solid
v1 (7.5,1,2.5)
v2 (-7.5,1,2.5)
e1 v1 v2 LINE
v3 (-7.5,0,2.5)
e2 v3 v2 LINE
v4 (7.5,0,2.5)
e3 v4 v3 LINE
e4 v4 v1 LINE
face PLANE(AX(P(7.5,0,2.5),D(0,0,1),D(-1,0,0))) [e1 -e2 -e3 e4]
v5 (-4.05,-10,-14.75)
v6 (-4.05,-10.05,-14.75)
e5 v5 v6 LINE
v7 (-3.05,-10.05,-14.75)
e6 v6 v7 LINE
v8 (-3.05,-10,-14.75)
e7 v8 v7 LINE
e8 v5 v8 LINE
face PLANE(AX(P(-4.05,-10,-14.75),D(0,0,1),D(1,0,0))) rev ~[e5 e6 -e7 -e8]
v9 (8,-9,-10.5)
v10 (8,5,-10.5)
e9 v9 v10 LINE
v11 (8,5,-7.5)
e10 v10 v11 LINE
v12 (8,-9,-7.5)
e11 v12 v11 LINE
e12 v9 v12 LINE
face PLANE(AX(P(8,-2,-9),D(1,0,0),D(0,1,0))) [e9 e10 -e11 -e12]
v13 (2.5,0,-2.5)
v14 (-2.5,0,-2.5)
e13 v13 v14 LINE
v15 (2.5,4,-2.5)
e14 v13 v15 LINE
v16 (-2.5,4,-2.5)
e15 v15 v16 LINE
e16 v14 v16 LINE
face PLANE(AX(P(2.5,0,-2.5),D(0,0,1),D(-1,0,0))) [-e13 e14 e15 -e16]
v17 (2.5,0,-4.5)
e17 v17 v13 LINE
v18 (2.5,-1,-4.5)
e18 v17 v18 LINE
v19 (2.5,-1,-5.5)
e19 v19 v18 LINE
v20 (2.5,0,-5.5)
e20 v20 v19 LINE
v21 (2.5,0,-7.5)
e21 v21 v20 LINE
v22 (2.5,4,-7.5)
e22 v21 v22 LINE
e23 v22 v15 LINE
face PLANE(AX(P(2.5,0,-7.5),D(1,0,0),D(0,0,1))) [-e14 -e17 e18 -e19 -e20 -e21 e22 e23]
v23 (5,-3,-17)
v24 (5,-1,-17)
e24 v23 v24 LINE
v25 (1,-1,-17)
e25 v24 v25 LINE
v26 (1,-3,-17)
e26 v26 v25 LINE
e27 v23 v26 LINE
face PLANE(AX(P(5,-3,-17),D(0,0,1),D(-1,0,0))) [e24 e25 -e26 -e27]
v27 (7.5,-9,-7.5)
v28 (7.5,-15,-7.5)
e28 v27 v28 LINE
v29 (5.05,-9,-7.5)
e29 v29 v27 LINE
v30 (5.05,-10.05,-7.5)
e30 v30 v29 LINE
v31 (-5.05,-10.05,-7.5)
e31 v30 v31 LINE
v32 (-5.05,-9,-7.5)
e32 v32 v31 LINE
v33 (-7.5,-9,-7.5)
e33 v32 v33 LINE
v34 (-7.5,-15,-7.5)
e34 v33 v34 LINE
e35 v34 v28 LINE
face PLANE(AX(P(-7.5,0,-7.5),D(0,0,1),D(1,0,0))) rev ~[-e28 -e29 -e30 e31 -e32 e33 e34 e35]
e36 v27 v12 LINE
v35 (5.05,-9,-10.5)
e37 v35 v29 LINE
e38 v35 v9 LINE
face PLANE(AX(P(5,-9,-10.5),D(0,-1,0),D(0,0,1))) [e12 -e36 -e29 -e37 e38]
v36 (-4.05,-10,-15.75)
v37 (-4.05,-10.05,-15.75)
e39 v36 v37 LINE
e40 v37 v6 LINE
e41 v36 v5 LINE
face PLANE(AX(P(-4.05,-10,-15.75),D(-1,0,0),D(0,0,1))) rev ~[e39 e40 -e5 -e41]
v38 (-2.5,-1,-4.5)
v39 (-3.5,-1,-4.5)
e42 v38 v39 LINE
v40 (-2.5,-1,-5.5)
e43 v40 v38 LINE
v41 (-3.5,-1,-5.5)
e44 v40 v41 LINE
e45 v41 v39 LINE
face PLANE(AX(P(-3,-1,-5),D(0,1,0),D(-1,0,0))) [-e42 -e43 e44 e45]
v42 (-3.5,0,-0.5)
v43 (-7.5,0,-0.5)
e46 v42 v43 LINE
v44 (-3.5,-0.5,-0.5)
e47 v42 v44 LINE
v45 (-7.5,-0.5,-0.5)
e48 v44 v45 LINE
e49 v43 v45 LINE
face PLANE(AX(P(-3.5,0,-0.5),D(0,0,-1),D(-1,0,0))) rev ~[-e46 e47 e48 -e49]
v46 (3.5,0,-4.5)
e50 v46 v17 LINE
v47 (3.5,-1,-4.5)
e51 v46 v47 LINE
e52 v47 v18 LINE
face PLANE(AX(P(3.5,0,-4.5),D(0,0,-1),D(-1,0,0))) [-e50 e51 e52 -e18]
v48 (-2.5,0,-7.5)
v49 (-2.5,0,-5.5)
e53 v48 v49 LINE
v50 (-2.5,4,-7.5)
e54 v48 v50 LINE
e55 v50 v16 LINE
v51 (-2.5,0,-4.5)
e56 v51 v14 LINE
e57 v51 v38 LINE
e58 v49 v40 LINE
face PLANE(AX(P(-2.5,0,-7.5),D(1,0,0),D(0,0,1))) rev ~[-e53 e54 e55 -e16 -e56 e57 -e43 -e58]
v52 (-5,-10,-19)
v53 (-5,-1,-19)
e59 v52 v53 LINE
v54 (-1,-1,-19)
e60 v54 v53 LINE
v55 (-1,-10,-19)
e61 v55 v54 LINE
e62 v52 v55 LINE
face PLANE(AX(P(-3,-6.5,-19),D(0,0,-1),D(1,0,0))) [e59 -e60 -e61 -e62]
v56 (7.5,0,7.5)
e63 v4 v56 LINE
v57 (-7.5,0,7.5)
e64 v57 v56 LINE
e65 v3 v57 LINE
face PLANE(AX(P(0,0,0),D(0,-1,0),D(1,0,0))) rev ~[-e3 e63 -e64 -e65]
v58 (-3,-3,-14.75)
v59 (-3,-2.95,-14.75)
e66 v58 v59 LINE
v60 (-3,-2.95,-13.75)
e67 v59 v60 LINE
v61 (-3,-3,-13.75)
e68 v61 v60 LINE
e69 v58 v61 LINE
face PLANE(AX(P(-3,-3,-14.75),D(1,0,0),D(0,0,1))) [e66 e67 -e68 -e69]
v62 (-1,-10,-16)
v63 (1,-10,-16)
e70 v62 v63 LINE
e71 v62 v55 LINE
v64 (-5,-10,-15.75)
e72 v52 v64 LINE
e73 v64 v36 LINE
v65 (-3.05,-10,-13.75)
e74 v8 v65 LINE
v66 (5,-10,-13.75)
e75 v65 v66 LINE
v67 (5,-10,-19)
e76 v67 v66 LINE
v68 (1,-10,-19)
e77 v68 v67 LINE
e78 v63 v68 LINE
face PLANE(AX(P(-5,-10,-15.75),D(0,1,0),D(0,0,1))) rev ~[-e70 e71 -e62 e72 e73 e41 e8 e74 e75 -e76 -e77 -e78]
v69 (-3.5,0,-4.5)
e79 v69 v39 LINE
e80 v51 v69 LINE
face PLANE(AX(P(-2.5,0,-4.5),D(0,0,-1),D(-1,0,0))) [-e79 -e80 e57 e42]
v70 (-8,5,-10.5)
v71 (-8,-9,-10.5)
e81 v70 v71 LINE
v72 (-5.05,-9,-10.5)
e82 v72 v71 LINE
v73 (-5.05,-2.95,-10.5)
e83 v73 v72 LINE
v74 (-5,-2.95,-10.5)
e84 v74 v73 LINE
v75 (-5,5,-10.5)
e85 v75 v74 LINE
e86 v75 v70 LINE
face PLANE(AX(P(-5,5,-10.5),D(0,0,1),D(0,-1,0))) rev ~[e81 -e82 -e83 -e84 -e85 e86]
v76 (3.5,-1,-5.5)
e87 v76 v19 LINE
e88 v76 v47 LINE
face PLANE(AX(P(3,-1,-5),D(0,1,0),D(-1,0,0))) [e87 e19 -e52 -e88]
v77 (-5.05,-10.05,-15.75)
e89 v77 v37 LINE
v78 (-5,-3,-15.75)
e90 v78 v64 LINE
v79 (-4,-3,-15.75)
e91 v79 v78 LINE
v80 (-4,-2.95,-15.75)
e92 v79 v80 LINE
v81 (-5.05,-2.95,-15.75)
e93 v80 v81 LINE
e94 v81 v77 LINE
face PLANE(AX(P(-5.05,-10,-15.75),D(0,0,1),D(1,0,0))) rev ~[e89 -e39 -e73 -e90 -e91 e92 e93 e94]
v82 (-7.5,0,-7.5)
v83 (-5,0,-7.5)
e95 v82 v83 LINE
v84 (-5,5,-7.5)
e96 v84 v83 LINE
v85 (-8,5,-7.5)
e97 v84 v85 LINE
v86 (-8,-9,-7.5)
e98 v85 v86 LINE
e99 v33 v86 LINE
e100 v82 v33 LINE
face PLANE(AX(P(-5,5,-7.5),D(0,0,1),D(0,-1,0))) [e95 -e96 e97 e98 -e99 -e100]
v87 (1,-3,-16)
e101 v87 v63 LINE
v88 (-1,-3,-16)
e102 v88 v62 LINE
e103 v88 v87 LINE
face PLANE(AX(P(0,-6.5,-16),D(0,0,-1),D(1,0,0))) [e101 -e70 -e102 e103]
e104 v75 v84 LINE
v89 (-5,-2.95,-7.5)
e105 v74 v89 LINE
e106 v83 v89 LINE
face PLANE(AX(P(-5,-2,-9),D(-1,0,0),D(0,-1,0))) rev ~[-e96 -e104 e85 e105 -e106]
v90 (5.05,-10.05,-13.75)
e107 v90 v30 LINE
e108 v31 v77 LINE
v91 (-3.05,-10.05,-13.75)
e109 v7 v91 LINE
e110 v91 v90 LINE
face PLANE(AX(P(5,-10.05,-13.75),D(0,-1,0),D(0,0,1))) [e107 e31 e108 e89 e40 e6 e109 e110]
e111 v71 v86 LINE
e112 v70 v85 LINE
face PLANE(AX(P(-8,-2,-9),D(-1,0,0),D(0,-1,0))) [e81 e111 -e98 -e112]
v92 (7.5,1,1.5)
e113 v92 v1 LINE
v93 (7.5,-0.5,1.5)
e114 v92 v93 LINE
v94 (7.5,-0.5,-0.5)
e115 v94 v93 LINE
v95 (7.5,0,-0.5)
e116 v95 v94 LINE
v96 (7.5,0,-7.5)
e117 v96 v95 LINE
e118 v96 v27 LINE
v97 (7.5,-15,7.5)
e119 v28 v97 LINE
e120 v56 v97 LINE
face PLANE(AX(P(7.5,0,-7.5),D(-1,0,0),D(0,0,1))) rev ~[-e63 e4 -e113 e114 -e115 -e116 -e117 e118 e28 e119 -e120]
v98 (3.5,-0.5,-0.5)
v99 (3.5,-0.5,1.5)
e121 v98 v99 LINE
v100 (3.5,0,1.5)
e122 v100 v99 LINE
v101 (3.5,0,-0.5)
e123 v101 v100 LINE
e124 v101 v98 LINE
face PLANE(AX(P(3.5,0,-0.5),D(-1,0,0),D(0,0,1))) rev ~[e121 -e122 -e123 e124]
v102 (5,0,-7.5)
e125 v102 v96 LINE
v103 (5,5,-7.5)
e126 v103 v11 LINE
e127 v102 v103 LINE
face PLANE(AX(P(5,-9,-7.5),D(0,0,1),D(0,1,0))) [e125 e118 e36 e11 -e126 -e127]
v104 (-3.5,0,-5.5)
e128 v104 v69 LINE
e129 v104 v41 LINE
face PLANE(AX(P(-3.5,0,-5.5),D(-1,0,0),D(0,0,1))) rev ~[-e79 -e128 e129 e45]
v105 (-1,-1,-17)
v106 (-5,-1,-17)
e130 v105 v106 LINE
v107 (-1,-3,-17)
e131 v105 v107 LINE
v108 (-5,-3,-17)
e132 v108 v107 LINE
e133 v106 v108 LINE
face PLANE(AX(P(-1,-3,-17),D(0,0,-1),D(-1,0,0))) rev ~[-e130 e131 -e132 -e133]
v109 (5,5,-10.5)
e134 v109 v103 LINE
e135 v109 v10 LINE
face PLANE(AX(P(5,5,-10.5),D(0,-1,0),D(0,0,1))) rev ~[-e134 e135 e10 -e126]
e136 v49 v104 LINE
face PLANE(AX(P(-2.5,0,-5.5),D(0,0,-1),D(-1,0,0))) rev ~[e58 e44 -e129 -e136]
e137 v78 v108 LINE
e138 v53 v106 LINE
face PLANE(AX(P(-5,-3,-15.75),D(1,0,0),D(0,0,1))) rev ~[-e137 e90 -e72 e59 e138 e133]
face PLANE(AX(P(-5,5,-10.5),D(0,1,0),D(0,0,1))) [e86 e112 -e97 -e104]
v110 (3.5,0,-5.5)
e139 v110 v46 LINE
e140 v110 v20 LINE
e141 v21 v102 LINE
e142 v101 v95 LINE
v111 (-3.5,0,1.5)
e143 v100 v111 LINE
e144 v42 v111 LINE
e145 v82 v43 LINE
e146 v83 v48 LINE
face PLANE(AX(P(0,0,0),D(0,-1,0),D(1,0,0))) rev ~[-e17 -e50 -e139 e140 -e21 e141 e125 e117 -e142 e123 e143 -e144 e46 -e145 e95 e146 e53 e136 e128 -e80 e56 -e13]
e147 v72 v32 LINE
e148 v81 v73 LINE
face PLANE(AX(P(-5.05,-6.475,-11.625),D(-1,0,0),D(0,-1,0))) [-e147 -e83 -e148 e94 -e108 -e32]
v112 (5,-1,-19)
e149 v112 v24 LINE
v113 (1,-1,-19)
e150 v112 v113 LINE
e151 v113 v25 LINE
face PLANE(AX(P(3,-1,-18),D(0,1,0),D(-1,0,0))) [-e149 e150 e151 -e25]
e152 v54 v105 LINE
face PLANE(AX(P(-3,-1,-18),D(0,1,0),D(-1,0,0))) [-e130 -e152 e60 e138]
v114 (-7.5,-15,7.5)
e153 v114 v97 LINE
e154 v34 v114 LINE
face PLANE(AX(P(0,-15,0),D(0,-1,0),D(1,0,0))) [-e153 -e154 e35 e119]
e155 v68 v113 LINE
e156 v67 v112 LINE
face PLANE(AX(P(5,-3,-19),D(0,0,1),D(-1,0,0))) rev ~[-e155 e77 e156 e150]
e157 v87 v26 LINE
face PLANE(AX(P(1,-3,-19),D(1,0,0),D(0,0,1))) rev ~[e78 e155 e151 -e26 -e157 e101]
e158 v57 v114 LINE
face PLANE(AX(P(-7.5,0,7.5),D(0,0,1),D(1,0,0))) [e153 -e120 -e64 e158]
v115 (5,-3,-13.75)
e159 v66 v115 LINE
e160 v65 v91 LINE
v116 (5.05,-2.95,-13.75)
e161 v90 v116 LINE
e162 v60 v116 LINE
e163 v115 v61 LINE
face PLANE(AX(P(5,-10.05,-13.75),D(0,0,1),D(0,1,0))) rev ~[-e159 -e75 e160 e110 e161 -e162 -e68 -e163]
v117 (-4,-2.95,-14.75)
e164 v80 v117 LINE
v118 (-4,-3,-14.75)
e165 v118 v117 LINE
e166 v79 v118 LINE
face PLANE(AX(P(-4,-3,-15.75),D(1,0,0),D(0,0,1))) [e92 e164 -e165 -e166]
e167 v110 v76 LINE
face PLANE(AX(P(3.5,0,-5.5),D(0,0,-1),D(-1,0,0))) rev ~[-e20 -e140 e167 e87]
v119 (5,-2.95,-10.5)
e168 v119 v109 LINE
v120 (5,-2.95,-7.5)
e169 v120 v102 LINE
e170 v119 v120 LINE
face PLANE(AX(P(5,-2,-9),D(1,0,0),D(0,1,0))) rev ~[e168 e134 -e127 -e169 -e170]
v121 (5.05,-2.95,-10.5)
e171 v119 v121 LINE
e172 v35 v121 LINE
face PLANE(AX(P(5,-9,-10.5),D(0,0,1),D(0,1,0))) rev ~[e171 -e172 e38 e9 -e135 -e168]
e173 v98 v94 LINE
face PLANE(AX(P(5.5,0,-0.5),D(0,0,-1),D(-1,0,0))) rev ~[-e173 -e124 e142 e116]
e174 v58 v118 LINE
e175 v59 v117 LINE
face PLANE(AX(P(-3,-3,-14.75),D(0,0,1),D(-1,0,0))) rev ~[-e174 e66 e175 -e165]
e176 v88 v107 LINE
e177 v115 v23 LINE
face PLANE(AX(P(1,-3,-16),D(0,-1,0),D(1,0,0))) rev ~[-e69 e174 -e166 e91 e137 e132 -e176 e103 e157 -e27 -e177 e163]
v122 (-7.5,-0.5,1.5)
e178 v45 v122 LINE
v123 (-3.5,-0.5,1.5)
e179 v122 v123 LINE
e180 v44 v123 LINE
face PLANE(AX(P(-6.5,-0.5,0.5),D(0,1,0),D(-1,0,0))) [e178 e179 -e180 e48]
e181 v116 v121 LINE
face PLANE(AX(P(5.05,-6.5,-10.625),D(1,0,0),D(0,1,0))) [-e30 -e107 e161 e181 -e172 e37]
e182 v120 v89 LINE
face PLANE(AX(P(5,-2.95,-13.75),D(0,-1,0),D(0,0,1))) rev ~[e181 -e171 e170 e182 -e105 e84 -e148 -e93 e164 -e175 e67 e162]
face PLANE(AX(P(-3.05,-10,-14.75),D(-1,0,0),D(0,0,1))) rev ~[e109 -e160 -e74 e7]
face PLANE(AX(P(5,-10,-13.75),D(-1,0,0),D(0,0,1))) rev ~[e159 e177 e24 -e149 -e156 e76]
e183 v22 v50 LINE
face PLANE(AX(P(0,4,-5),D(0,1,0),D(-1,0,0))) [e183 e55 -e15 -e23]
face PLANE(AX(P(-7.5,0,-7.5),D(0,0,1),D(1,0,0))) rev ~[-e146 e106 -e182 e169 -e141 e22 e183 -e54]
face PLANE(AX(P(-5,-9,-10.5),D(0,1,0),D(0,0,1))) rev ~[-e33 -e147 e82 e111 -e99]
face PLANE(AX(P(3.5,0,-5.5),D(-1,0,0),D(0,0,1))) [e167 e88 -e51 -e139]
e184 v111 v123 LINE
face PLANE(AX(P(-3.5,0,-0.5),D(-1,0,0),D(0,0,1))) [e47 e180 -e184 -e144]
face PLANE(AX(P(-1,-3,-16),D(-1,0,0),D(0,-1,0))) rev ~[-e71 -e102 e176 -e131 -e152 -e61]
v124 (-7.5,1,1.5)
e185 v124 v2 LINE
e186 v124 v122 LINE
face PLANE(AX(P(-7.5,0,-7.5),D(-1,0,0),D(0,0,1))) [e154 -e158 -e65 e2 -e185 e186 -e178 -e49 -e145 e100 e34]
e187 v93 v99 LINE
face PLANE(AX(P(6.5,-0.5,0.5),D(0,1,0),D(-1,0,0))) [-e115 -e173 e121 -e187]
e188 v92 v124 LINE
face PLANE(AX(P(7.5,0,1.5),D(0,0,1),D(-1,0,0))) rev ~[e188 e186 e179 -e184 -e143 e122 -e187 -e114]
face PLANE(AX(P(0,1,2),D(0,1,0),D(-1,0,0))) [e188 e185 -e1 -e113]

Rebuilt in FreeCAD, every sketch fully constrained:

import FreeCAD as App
import Part
import Sketcher
from FreeCAD import Vector
Q = App.Units.Quantity

doc = App.newDocument("Part")
body = doc.addObject("PartDesign::Body", "Body")

# Sketch on XZ plane
sketch1 = body.newObject("Sketcher::SketchObject", "Sketch")
sketch1.AttachmentSupport = (doc.getObject("XZ_Plane"), [""])
sketch1.MapMode = "FlatFace"
sketch1.addGeometry([
    Part.LineSegment(Vector(-8, 8, 0), Vector(-8, -8, 0)),
    Part.LineSegment(Vector(-8, -8, 0), Vector(8, -8, 0)),
    Part.LineSegment(Vector(8, -8, 0), Vector(8, 8, 0)),
    Part.LineSegment(Vector(8, 8, 0), Vector(-8, 8, 0)),
], False)
sketch1.addConstraint([
    Sketcher.Constraint("Coincident", 0, 2, 1, 1),
    Sketcher.Constraint("Coincident", 1, 2, 2, 1),
    Sketcher.Constraint("Coincident", 2, 2, 3, 1),
    Sketcher.Constraint("Coincident", 3, 2, 0, 1),
    Sketcher.Constraint("Vertical", 0),
    Sketcher.Constraint("Horizontal", 1),
    Sketcher.Constraint("Vertical", 2),
    Sketcher.Constraint("Horizontal", 3),
    Sketcher.Constraint("Symmetric", 0, 2, 2, 2, -1, 1),
    Sketcher.Constraint("Equal", 3, 0),
    Sketcher.Constraint("DistanceX", 1, 1, 1, 2, Q("15 mm")),
])
pad1 = body.newObject("PartDesign::Pad", "Pad")
pad1.Profile = sketch1
pad1.Length = 15

# Sketch on XY plane
sketch2 = body.newObject("Sketcher::SketchObject", "Sketch001")
sketch2.AttachmentSupport = (doc.getObject("XY_Plane"), [""])
sketch2.MapMode = "FlatFace"
sketch2.AttachmentOffset = App.Placement(Vector(0, 0, -7.5), App.Rotation())
sketch2.addGeometry([
    Part.LineSegment(Vector(-5, -10, 0), Vector(-5, -3, 0)),
    Part.LineSegment(Vector(-5, -3, 0), Vector(5, -3, 0)),
    Part.LineSegment(Vector(5, -3, 0), Vector(5, -10, 0)),
    Part.LineSegment(Vector(5, -10, 0), Vector(-5, -10, 0)),
], False)
sketch2.addConstraint([
    Sketcher.Constraint("Coincident", 0, 2, 1, 1),
    Sketcher.Constraint("Coincident", 1, 2, 2, 1),
    Sketcher.Constraint("Coincident", 2, 2, 3, 1),
    Sketcher.Constraint("Coincident", 3, 2, 0, 1),
    Sketcher.Constraint("Vertical", 0),
    Sketcher.Constraint("Horizontal", 1),
    Sketcher.Constraint("Vertical", 2),
    Sketcher.Constraint("Horizontal", 3),
    Sketcher.Constraint("DistanceX", 1, 1, 1, 2, Q("10 mm")),
    Sketcher.Constraint("DistanceY", 0, 1, 0, 2, Q("7 mm")),
    Sketcher.Constraint("DistanceX", 0, 2, -1, 1, Q("5 mm")),
    Sketcher.Constraint("DistanceY", 0, 2, -1, 1, Q("3 mm")),
])
pad2 = body.newObject("PartDesign::Pad", "Pad001")
pad2.Profile = sketch2
pad2.Length = 8.5
pad2.Reversed = True

# Sketch on XY plane
sketch3 = body.newObject("Sketcher::SketchObject", "Sketch002")
sketch3.AttachmentSupport = (doc.getObject("XY_Plane"), [""])
sketch3.MapMode = "FlatFace"
sketch3.AttachmentOffset = App.Placement(Vector(0, 0, -16), App.Rotation())
sketch3.addGeometry([
    Part.LineSegment(Vector(-5, -10, 0), Vector(-5, -3, 0)),
    Part.LineSegment(Vector(-5, -3, 0), Vector(-1, -3, 0)),
    Part.LineSegment(Vector(-1, -3, 0), Vector(-1, -10, 0)),
    Part.LineSegment(Vector(-1, -10, 0), Vector(-5, -10, 0)),
], False)
sketch3.addConstraint([
    Sketcher.Constraint("Coincident", 0, 2, 1, 1),
    Sketcher.Constraint("Coincident", 1, 2, 2, 1),
    Sketcher.Constraint("Coincident", 2, 2, 3, 1),
    Sketcher.Constraint("Coincident", 3, 2, 0, 1),
    Sketcher.Constraint("Vertical", 0),
    Sketcher.Constraint("Horizontal", 1),
    Sketcher.Constraint("Vertical", 2),
    Sketcher.Constraint("Horizontal", 3),
    Sketcher.Constraint("DistanceX", 1, 1, 1, 2, Q("4 mm")),
    Sketcher.Constraint("DistanceY", 0, 1, 0, 2, Q("7 mm")),
    Sketcher.Constraint("DistanceX", 0, 2, -1, 1, Q("5 mm")),
    Sketcher.Constraint("DistanceY", 0, 2, -1, 1, Q("3 mm")),
])
pad3 = body.newObject("PartDesign::Pad", "Pad002")
pad3.Profile = sketch3
pad3.Length = 3
pad3.Reversed = True

# Sketch on XY plane
sketch4 = body.newObject("Sketcher::SketchObject", "Sketch003")
sketch4.AttachmentSupport = (doc.getObject("XY_Plane"), [""])
sketch4.MapMode = "FlatFace"
sketch4.AttachmentOffset = App.Placement(Vector(0, 0, -16), App.Rotation())
sketch4.addGeometry([
    Part.LineSegment(Vector(1, -10, 0), Vector(1, -3, 0)),
    Part.LineSegment(Vector(1, -3, 0), Vector(5, -3, 0)),
    Part.LineSegment(Vector(5, -3, 0), Vector(5, -10, 0)),
    Part.LineSegment(Vector(5, -10, 0), Vector(1, -10, 0)),
], False)
sketch4.addConstraint([
    Sketcher.Constraint("Coincident", 0, 2, 1, 1),
    Sketcher.Constraint("Coincident", 1, 2, 2, 1),
    Sketcher.Constraint("Coincident", 2, 2, 3, 1),
    Sketcher.Constraint("Coincident", 3, 2, 0, 1),
    Sketcher.Constraint("Vertical", 0),
    Sketcher.Constraint("Horizontal", 1),
    Sketcher.Constraint("Vertical", 2),
    Sketcher.Constraint("Horizontal", 3),
    Sketcher.Constraint("DistanceX", 1, 1, 1, 2, Q("4 mm")),
    Sketcher.Constraint("DistanceY", 0, 1, 0, 2, Q("7 mm")),
    Sketcher.Constraint("DistanceX", -1, 1, 0, 2, Q("1 mm")),
    Sketcher.Constraint("DistanceY", 0, 2, -1, 1, Q("3 mm")),
])
pad4 = body.newObject("PartDesign::Pad", "Pad003")
pad4.Profile = sketch4
pad4.Length = 3
pad4.Reversed = True

# Sketch on XZ plane
sketch5 = body.newObject("Sketcher::SketchObject", "Sketch004")
sketch5.AttachmentSupport = (doc.getObject("XZ_Plane"), [""])
sketch5.MapMode = "FlatFace"
sketch5.AttachmentOffset = App.Placement(Vector(0, 0, 3), App.Rotation())
sketch5.addGeometry([
    Part.LineSegment(Vector(5, -17, 0), Vector(5, -19, 0)),
    Part.LineSegment(Vector(5, -19, 0), Vector(1, -19, 0)),
    Part.LineSegment(Vector(1, -19, 0), Vector(1, -17, 0)),
    Part.LineSegment(Vector(1, -17, 0), Vector(5, -17, 0)),
], False)
sketch5.addConstraint([
    Sketcher.Constraint("Coincident", 0, 2, 1, 1),
    Sketcher.Constraint("Coincident", 1, 2, 2, 1),
    Sketcher.Constraint("Coincident", 2, 2, 3, 1),
    Sketcher.Constraint("Coincident", 3, 2, 0, 1),
    Sketcher.Constraint("Vertical", 0),
    Sketcher.Constraint("Horizontal", 1),
    Sketcher.Constraint("Vertical", 2),
    Sketcher.Constraint("Horizontal", 3),
    Sketcher.Constraint("DistanceX", 1, 2, 1, 1, Q("4 mm")),
    Sketcher.Constraint("DistanceY", 0, 2, 0, 1, Q("2 mm")),
    Sketcher.Constraint("DistanceX", -1, 1, 0, 2, Q("5 mm")),
    Sketcher.Constraint("DistanceY", 0, 2, -1, 1, Q("19 mm")),
])
pad5 = body.newObject("PartDesign::Pad", "Pad004")
pad5.Profile = sketch5
pad5.Length = 2
pad5.Reversed = True

# Sketch on XZ plane
sketch6 = body.newObject("Sketcher::SketchObject", "Sketch005")
sketch6.AttachmentSupport = (doc.getObject("XZ_Plane"), [""])
sketch6.MapMode = "FlatFace"
sketch6.AttachmentOffset = App.Placement(Vector(0, 0, 3), App.Rotation())
sketch6.addGeometry([
    Part.LineSegment(Vector(-1, -17, 0), Vector(-1, -19, 0)),
    Part.LineSegment(Vector(-1, -19, 0), Vector(-5, -19, 0)),
    Part.LineSegment(Vector(-5, -19, 0), Vector(-5, -17, 0)),
    Part.LineSegment(Vector(-5, -17, 0), Vector(-1, -17, 0)),
], False)
sketch6.addConstraint([
    Sketcher.Constraint("Coincident", 0, 2, 1, 1),
    Sketcher.Constraint("Coincident", 1, 2, 2, 1),
    Sketcher.Constraint("Coincident", 2, 2, 3, 1),
    Sketcher.Constraint("Coincident", 3, 2, 0, 1),
    Sketcher.Constraint("Vertical", 0),
    Sketcher.Constraint("Horizontal", 1),
    Sketcher.Constraint("Vertical", 2),
    Sketcher.Constraint("Horizontal", 3),
    Sketcher.Constraint("DistanceX", 1, 2, 1, 1, Q("4 mm")),
    Sketcher.Constraint("DistanceY", 0, 2, 0, 1, Q("2 mm")),
    Sketcher.Constraint("DistanceX", 0, 2, -1, 1, Q("1 mm")),
    Sketcher.Constraint("DistanceY", 0, 2, -1, 1, Q("19 mm")),
])
pad6 = body.newObject("PartDesign::Pad", "Pad005")
pad6.Profile = sketch6
pad6.Length = 4
pad6.Midplane = True

# Sketch on YZ plane
sketch7 = body.newObject("Sketcher::SketchObject", "Sketch006")
sketch7.AttachmentSupport = (doc.getObject("YZ_Plane"), [""])
sketch7.MapMode = "FlatFace"
sketch7.AttachmentOffset = App.Placement(Vector(0, 0, 5), App.Rotation())
sketch7.addGeometry([
    Part.LineSegment(Vector(-9, -7.5, 0), Vector(-9, -10.5, 0)),
    Part.LineSegment(Vector(-9, -10.5, 0), Vector(5, -10.5, 0)),
    Part.LineSegment(Vector(5, -10.5, 0), Vector(5, -7.5, 0)),
    Part.LineSegment(Vector(5, -7.5, 0), Vector(-9, -7.5, 0)),
], False)
sketch7.addConstraint([
    Sketcher.Constraint("Coincident", 0, 2, 1, 1),
    Sketcher.Constraint("Coincident", 1, 2, 2, 1),
    Sketcher.Constraint("Coincident", 2, 2, 3, 1),
    Sketcher.Constraint("Coincident", 3, 2, 0, 1),
    Sketcher.Constraint("Vertical", 0),
    Sketcher.Constraint("Horizontal", 1),
    Sketcher.Constraint("Vertical", 2),
    Sketcher.Constraint("Horizontal", 3),
    Sketcher.Constraint("DistanceX", 1, 1, 1, 2, Q("14 mm")),
    Sketcher.Constraint("DistanceY", 0, 2, 0, 1, Q("3 mm")),
    Sketcher.Constraint("DistanceX", 0, 2, -1, 1, Q("9 mm")),
    Sketcher.Constraint("DistanceY", 0, 2, -1, 1, Q("10.5 mm")),
])
pad7 = body.newObject("PartDesign::Pad", "Pad006")
pad7.Profile = sketch7
pad7.Length = 3

# Sketch on YZ plane
sketch8 = body.newObject("Sketcher::SketchObject", "Sketch007")
sketch8.AttachmentSupport = (doc.getObject("YZ_Plane"), [""])
sketch8.MapMode = "FlatFace"
sketch8.AttachmentOffset = App.Placement(Vector(0, 0, -5), App.Rotation())
sketch8.addGeometry([
    Part.LineSegment(Vector(5, -7.5, 0), Vector(5, -10.5, 0)),
    Part.LineSegment(Vector(5, -10.5, 0), Vector(-9, -10.5, 0)),
    Part.LineSegment(Vector(-9, -10.5, 0), Vector(-9, -7.5, 0)),
    Part.LineSegment(Vector(-9, -7.5, 0), Vector(5, -7.5, 0)),
], False)
sketch8.addConstraint([
    Sketcher.Constraint("Coincident", 0, 2, 1, 1),
    Sketcher.Constraint("Coincident", 1, 2, 2, 1),
    Sketcher.Constraint("Coincident", 2, 2, 3, 1),
    Sketcher.Constraint("Coincident", 3, 2, 0, 1),
    Sketcher.Constraint("Vertical", 0),
    Sketcher.Constraint("Horizontal", 1),
    Sketcher.Constraint("Vertical", 2),
    Sketcher.Constraint("Horizontal", 3),
    Sketcher.Constraint("DistanceX", 1, 2, 1, 1, Q("14 mm")),
    Sketcher.Constraint("DistanceY", 0, 2, 0, 1, Q("3 mm")),
    Sketcher.Constraint("DistanceX", -1, 1, 0, 2, Q("5 mm")),
    Sketcher.Constraint("DistanceY", 0, 2, -1, 1, Q("10.5 mm")),
])
pad8 = body.newObject("PartDesign::Pad", "Pad007")
pad8.Profile = sketch8
pad8.Length = 3
pad8.Reversed = True

# Sketch on XZ plane
sketch9 = body.newObject("Sketcher::SketchObject", "Sketch008")
sketch9.AttachmentSupport = (doc.getObject("XZ_Plane"), [""])
sketch9.MapMode = "FlatFace"
sketch9.addGeometry([
    Part.LineSegment(Vector(2, -2, 0), Vector(2, -8, 0)),
    Part.LineSegment(Vector(2, -8, 0), Vector(-2, -8, 0)),
    Part.LineSegment(Vector(-2, -8, 0), Vector(-2, -2, 0)),
    Part.LineSegment(Vector(-2, -2, 0), Vector(2, -2, 0)),
], False)
sketch9.addConstraint([
    Sketcher.Constraint("Coincident", 0, 2, 1, 1),
    Sketcher.Constraint("Coincident", 1, 2, 2, 1),
    Sketcher.Constraint("Coincident", 2, 2, 3, 1),
    Sketcher.Constraint("Coincident", 3, 2, 0, 1),
    Sketcher.Constraint("Vertical", 0),
    Sketcher.Constraint("Horizontal", 1),
    Sketcher.Constraint("Vertical", 2),
    Sketcher.Constraint("Horizontal", 3),
    Sketcher.Constraint("Equal", 3, 0),
    Sketcher.Constraint("DistanceX", 1, 2, 1, 1, Q("5 mm")),
    Sketcher.Constraint("DistanceX", -1, 1, 0, 2, Q("2.5 mm")),
    Sketcher.Constraint("DistanceY", 0, 2, -1, 1, Q("7.5 mm")),
])
pad9 = body.newObject("PartDesign::Pad", "Pad008")
pad9.Profile = sketch9
pad9.Length = 4
pad9.Reversed = True

# Sketch on XZ plane
sketch10 = body.newObject("Sketcher::SketchObject", "Sketch009")
sketch10.AttachmentSupport = (doc.getObject("XZ_Plane"), [""])
sketch10.MapMode = "FlatFace"
sketch10.addGeometry([
    Part.LineSegment(Vector(7.5, 2.5, 0), Vector(7.5, 1.5, 0)),
    Part.LineSegment(Vector(7.5, 1.5, 0), Vector(-7.5, 1.5, 0)),
    Part.LineSegment(Vector(-7.5, 1.5, 0), Vector(-7.5, 2.5, 0)),
    Part.LineSegment(Vector(-7.5, 2.5, 0), Vector(7.5, 2.5, 0)),
], False)
sketch10.addConstraint([
    Sketcher.Constraint("Coincident", 0, 2, 1, 1),
    Sketcher.Constraint("Coincident", 1, 2, 2, 1),
    Sketcher.Constraint("Coincident", 2, 2, 3, 1),
    Sketcher.Constraint("Coincident", 3, 2, 0, 1),
    Sketcher.Constraint("Vertical", 0),
    Sketcher.Constraint("Horizontal", 1),
    Sketcher.Constraint("Vertical", 2),
    Sketcher.Constraint("Horizontal", 3),
    Sketcher.Constraint("DistanceX", 1, 2, 1, 1, Q("15 mm")),
    Sketcher.Constraint("DistanceY", 0, 2, 0, 1, Q("1 mm")),
    Sketcher.Constraint("DistanceX", -1, 1, 0, 2, Q("7.5 mm")),
    Sketcher.Constraint("DistanceY", -1, 1, 0, 2, Q("1.5 mm")),
])
pad10 = body.newObject("PartDesign::Pad", "Pad009")
pad10.Profile = sketch10
pad10.Length = 1
pad10.Reversed = True

# Sketch on XZ plane
sketch11 = body.newObject("Sketcher::SketchObject", "Sketch010")
sketch11.AttachmentSupport = (doc.getObject("XZ_Plane"), [""])
sketch11.MapMode = "FlatFace"
sketch11.addGeometry([
    Part.LineSegment(Vector(-2.5, -4.5, 0), Vector(-2.5, -5.5, 0)),
    Part.LineSegment(Vector(-2.5, -5.5, 0), Vector(-3.5, -5.5, 0)),
    Part.LineSegment(Vector(-3.5, -5.5, 0), Vector(-3.5, -4.5, 0)),
    Part.LineSegment(Vector(-3.5, -4.5, 0), Vector(-2.5, -4.5, 0)),
], False)
sketch11.addConstraint([
    Sketcher.Constraint("Coincident", 0, 2, 1, 1),
    Sketcher.Constraint("Coincident", 1, 2, 2, 1),
    Sketcher.Constraint("Coincident", 2, 2, 3, 1),
    Sketcher.Constraint("Coincident", 3, 2, 0, 1),
    Sketcher.Constraint("Vertical", 0),
    Sketcher.Constraint("Horizontal", 1),
    Sketcher.Constraint("Vertical", 2),
    Sketcher.Constraint("Horizontal", 3),
    Sketcher.Constraint("Equal", 3, 0),
    Sketcher.Constraint("DistanceX", 1, 2, 1, 1, Q("1 mm")),
    Sketcher.Constraint("DistanceX", 0, 2, -1, 1, Q("2.5 mm")),
    Sketcher.Constraint("DistanceY", 0, 2, -1, 1, Q("5.5 mm")),
])
pocket1 = body.newObject("PartDesign::Pocket", "Pocket")
pocket1.Profile = sketch11
pocket1.Length = 1
pocket1.Reversed = True

# Sketch on XZ plane
sketch12 = body.newObject("Sketcher::SketchObject", "Sketch011")
sketch12.AttachmentSupport = (doc.getObject("XZ_Plane"), [""])
sketch12.MapMode = "FlatFace"
sketch12.addGeometry([
    Part.LineSegment(Vector(3.5, -4.5, 0), Vector(3.5, -5.5, 0)),
    Part.LineSegment(Vector(3.5, -5.5, 0), Vector(2.5, -5.5, 0)),
    Part.LineSegment(Vector(2.5, -5.5, 0), Vector(2.5, -4.5, 0)),
    Part.LineSegment(Vector(2.5, -4.5, 0), Vector(3.5, -4.5, 0)),
], False)
sketch12.addConstraint([
    Sketcher.Constraint("Coincident", 0, 2, 1, 1),
    Sketcher.Constraint("Coincident", 1, 2, 2, 1),
    Sketcher.Constraint("Coincident", 2, 2, 3, 1),
    Sketcher.Constraint("Coincident", 3, 2, 0, 1),
    Sketcher.Constraint("Vertical", 0),
    Sketcher.Constraint("Horizontal", 1),
    Sketcher.Constraint("Vertical", 2),
    Sketcher.Constraint("Horizontal", 3),
    Sketcher.Constraint("Equal", 3, 0),
    Sketcher.Constraint("DistanceX", 1, 2, 1, 1, Q("1 mm")),
    Sketcher.Constraint("DistanceX", -1, 1, 0, 2, Q("3.5 mm")),
    Sketcher.Constraint("DistanceY", 0, 2, -1, 1, Q("5.5 mm")),
])
pocket2 = body.newObject("PartDesign::Pocket", "Pocket001")
pocket2.Profile = sketch12
pocket2.Length = 1
pocket2.Reversed = True

# Sketch on XZ plane
sketch13 = body.newObject("Sketcher::SketchObject", "Sketch012")
sketch13.AttachmentSupport = (doc.getObject("XZ_Plane"), [""])
sketch13.MapMode = "FlatFace"
sketch13.addGeometry([
    Part.LineSegment(Vector(7.5, 1.5, 0), Vector(7.5, -0.5, 0)),
    Part.LineSegment(Vector(7.5, -0.5, 0), Vector(5.5, -0.5, 0)),
    Part.LineSegment(Vector(5.5, -0.5, 0), Vector(5.5, 1.5, 0)),
    Part.LineSegment(Vector(5.5, 1.5, 0), Vector(7.5, 1.5, 0)),
], False)
sketch13.addConstraint([
    Sketcher.Constraint("Coincident", 0, 2, 1, 1),
    Sketcher.Constraint("Coincident", 1, 2, 2, 1),
    Sketcher.Constraint("Coincident", 2, 2, 3, 1),
    Sketcher.Constraint("Coincident", 3, 2, 0, 1),
    Sketcher.Constraint("Vertical", 0),
    Sketcher.Constraint("Horizontal", 1),
    Sketcher.Constraint("Vertical", 2),
    Sketcher.Constraint("Horizontal", 3),
    Sketcher.Constraint("Equal", 3, 0),
    Sketcher.Constraint("DistanceX", 1, 2, 1, 1, Q("2 mm")),
    Sketcher.Constraint("DistanceX", -1, 1, 0, 2, Q("7.5 mm")),
    Sketcher.Constraint("DistanceY", 0, 2, -1, 1, Q("0.5 mm")),
])
pocket3 = body.newObject("PartDesign::Pocket", "Pocket002")
pocket3.Profile = sketch13
pocket3.Length = 0.5
pocket3.Reversed = True

# Sketch on XZ plane
sketch14 = body.newObject("Sketcher::SketchObject", "Sketch013")
sketch14.AttachmentSupport = (doc.getObject("XZ_Plane"), [""])
sketch14.MapMode = "FlatFace"
sketch14.addGeometry([
    Part.LineSegment(Vector(5.5, 1.5, 0), Vector(5.5, -0.5, 0)),
    Part.LineSegment(Vector(5.5, -0.5, 0), Vector(3.5, -0.5, 0)),
    Part.LineSegment(Vector(3.5, -0.5, 0), Vector(3.5, 1.5, 0)),
    Part.LineSegment(Vector(3.5, 1.5, 0), Vector(5.5, 1.5, 0)),
], False)
sketch14.addConstraint([
    Sketcher.Constraint("Coincident", 0, 2, 1, 1),
    Sketcher.Constraint("Coincident", 1, 2, 2, 1),
    Sketcher.Constraint("Coincident", 2, 2, 3, 1),
    Sketcher.Constraint("Coincident", 3, 2, 0, 1),
    Sketcher.Constraint("Vertical", 0),
    Sketcher.Constraint("Horizontal", 1),
    Sketcher.Constraint("Vertical", 2),
    Sketcher.Constraint("Horizontal", 3),
    Sketcher.Constraint("Equal", 3, 0),
    Sketcher.Constraint("DistanceX", 1, 2, 1, 1, Q("2 mm")),
    Sketcher.Constraint("DistanceX", -1, 1, 0, 2, Q("5.5 mm")),
    Sketcher.Constraint("DistanceY", 0, 2, -1, 1, Q("0.5 mm")),
])
pocket4 = body.newObject("PartDesign::Pocket", "Pocket003")
pocket4.Profile = sketch14
pocket4.Length = 0.5
pocket4.Reversed = True

# Sketch on XZ plane
sketch15 = body.newObject("Sketcher::SketchObject", "Sketch014")
sketch15.AttachmentSupport = (doc.getObject("XZ_Plane"), [""])
sketch15.MapMode = "FlatFace"
sketch15.addGeometry([
    Part.LineSegment(Vector(-7.5, -0.5, 0), Vector(-7.5, 1.5, 0)),
    Part.LineSegment(Vector(-7.5, 1.5, 0), Vector(-3.5, 1.5, 0)),
    Part.LineSegment(Vector(-3.5, 1.5, 0), Vector(-3.5, -0.5, 0)),
    Part.LineSegment(Vector(-3.5, -0.5, 0), Vector(-7.5, -0.5, 0)),
], False)
sketch15.addConstraint([
    Sketcher.Constraint("Coincident", 0, 2, 1, 1),
    Sketcher.Constraint("Coincident", 1, 2, 2, 1),
    Sketcher.Constraint("Coincident", 2, 2, 3, 1),
    Sketcher.Constraint("Coincident", 3, 2, 0, 1),
    Sketcher.Constraint("Vertical", 0),
    Sketcher.Constraint("Horizontal", 1),
    Sketcher.Constraint("Vertical", 2),
    Sketcher.Constraint("Horizontal", 3),
    Sketcher.Constraint("DistanceX", 1, 1, 1, 2, Q("4 mm")),
    Sketcher.Constraint("DistanceY", 0, 1, 0, 2, Q("2 mm")),
    Sketcher.Constraint("DistanceX", 0, 2, -1, 1, Q("7.5 mm")),
    Sketcher.Constraint("DistanceY", -1, 1, 0, 2, Q("1.5 mm")),
])
pocket5 = body.newObject("PartDesign::Pocket", "Pocket004")
pocket5.Profile = sketch15
pocket5.Length = 0.5
pocket5.Reversed = True

# Sketch on XZ plane
sketch16 = body.newObject("Sketcher::SketchObject", "Sketch015")
sketch16.AttachmentSupport = (doc.getObject("XZ_Plane"), [""])
sketch16.MapMode = "FlatFace"
sketch16.AttachmentOffset = App.Placement(Vector(0, 0, 3), App.Rotation())
sketch16.addGeometry([
    Part.LineSegment(Vector(5, -8, 0), Vector(5, -14, 0)),
    Part.LineSegment(Vector(5, -14, 0), Vector(-5, -14, 0)),
    Part.LineSegment(Vector(-5, -14, 0), Vector(-5, -8, 0)),
    Part.LineSegment(Vector(-5, -8, 0), Vector(5, -8, 0)),
], False)
sketch16.addConstraint([
    Sketcher.Constraint("Coincident", 0, 2, 1, 1),
    Sketcher.Constraint("Coincident", 1, 2, 2, 1),
    Sketcher.Constraint("Coincident", 2, 2, 3, 1),
    Sketcher.Constraint("Coincident", 3, 2, 0, 1),
    Sketcher.Constraint("Vertical", 0),
    Sketcher.Constraint("Horizontal", 1),
    Sketcher.Constraint("Vertical", 2),
    Sketcher.Constraint("Horizontal", 3),
    Sketcher.Constraint("DistanceX", 1, 2, 1, 1, Q("10 mm")),
    Sketcher.Constraint("DistanceX", -1, 1, 0, 2, Q("5 mm")),
    Sketcher.Constraint("DistanceY", 0, 2, 0, 1, Q("6.25 mm")),
    Sketcher.Constraint("DistanceY", 2, 2, -1, 1, Q("7.5 mm")),
])
pad11 = body.newObject("PartDesign::Pad", "Pad010")
pad11.Profile = sketch16
pad11.Length = 0.05
pad11.Reversed = True

# Sketch on XZ plane
sketch17 = body.newObject("Sketcher::SketchObject", "Sketch016")
sketch17.AttachmentSupport = (doc.getObject("XZ_Plane"), [""])
sketch17.MapMode = "FlatFace"
sketch17.AttachmentOffset = App.Placement(Vector(0, 0, 3), App.Rotation())
sketch17.addGeometry([
    Part.LineSegment(Vector(-3, -13.8, 0), Vector(-3, -14.8, 0)),
    Part.LineSegment(Vector(-3, -14.8, 0), Vector(-5, -14.8, 0)),
    Part.LineSegment(Vector(-5, -14.8, 0), Vector(-5, -13.8, 0)),
    Part.LineSegment(Vector(-5, -13.8, 0), Vector(-3, -13.8, 0)),
], False)
sketch17.addConstraint([
    Sketcher.Constraint("Coincident", 0, 2, 1, 1),
    Sketcher.Constraint("Coincident", 1, 2, 2, 1),
    Sketcher.Constraint("Coincident", 2, 2, 3, 1),
    Sketcher.Constraint("Coincident", 3, 2, 0, 1),
    Sketcher.Constraint("Vertical", 0),
    Sketcher.Constraint("Horizontal", 1),
    Sketcher.Constraint("Vertical", 2),
    Sketcher.Constraint("Horizontal", 3),
    Sketcher.Constraint("DistanceX", 1, 2, 1, 1, Q("2 mm")),
    Sketcher.Constraint("DistanceY", 0, 2, 0, 1, Q("1 mm")),
    Sketcher.Constraint("DistanceX", 0, 2, -1, 1, Q("3 mm")),
    Sketcher.Constraint("DistanceY", 0, 2, -1, 1, Q("14.75 mm")),
])
pad12 = body.newObject("PartDesign::Pad", "Pad011")
pad12.Profile = sketch17
pad12.Length = 0.05
pad12.Reversed = True

# Sketch on XZ plane
sketch18 = body.newObject("Sketcher::SketchObject", "Sketch017")
sketch18.AttachmentSupport = (doc.getObject("XZ_Plane"), [""])
sketch18.MapMode = "FlatFace"
sketch18.AttachmentOffset = App.Placement(Vector(0, 0, 3), App.Rotation())
sketch18.addGeometry([
    Part.LineSegment(Vector(-4, -14.8, 0), Vector(-4, -15.8, 0)),
    Part.LineSegment(Vector(-4, -15.8, 0), Vector(-5, -15.8, 0)),
    Part.LineSegment(Vector(-5, -15.8, 0), Vector(-5, -14.8, 0)),
    Part.LineSegment(Vector(-5, -14.8, 0), Vector(-4, -14.8, 0)),
], False)
sketch18.addConstraint([
    Sketcher.Constraint("Coincident", 0, 2, 1, 1),
    Sketcher.Constraint("Coincident", 1, 2, 2, 1),
    Sketcher.Constraint("Coincident", 2, 2, 3, 1),
    Sketcher.Constraint("Coincident", 3, 2, 0, 1),
    Sketcher.Constraint("Vertical", 0),
    Sketcher.Constraint("Horizontal", 1),
    Sketcher.Constraint("Vertical", 2),
    Sketcher.Constraint("Horizontal", 3),
    Sketcher.Constraint("Equal", 3, 0),
    Sketcher.Constraint("DistanceX", 1, 2, 1, 1, Q("1 mm")),
    Sketcher.Constraint("DistanceX", 0, 2, -1, 1, Q("4 mm")),
    Sketcher.Constraint("DistanceY", 0, 2, -1, 1, Q("15.75 mm")),
])
pad13 = body.newObject("PartDesign::Pad", "Pad012")
pad13.Profile = sketch18
pad13.Length = 0.05
pad13.Reversed = True

# Sketch on YZ plane
sketch19 = body.newObject("Sketcher::SketchObject", "Sketch018")
sketch19.AttachmentSupport = (doc.getObject("YZ_Plane"), [""])
sketch19.MapMode = "FlatFace"
sketch19.AttachmentOffset = App.Placement(Vector(0, 0, -5), App.Rotation())
sketch19.addGeometry([
    Part.LineSegment(Vector(-3, -8, 0), Vector(-3, -16, 0)),
    Part.LineSegment(Vector(-3, -16, 0), Vector(-10, -16, 0)),
    Part.LineSegment(Vector(-10, -16, 0), Vector(-10, -8, 0)),
    Part.LineSegment(Vector(-10, -8, 0), Vector(-3, -8, 0)),
], False)
sketch19.addConstraint([
    Sketcher.Constraint("Coincident", 0, 2, 1, 1),
    Sketcher.Constraint("Coincident", 1, 2, 2, 1),
    Sketcher.Constraint("Coincident", 2, 2, 3, 1),
    Sketcher.Constraint("Coincident", 3, 2, 0, 1),
    Sketcher.Constraint("Vertical", 0),
    Sketcher.Constraint("Horizontal", 1),
    Sketcher.Constraint("Vertical", 2),
    Sketcher.Constraint("Horizontal", 3),
    Sketcher.Constraint("DistanceX", 1, 2, -1, 1, Q("10 mm")),
    Sketcher.Constraint("DistanceX", 1, 2, 1, 1, Q("7.05 mm")),
    Sketcher.Constraint("DistanceY", 0, 2, 0, 1, Q("8.25 mm")),
    Sketcher.Constraint("DistanceY", 2, 2, -1, 1, Q("7.5 mm")),
])
pad14 = body.newObject("PartDesign::Pad", "Pad013")
pad14.Profile = sketch19
pad14.Length = 0.05
pad14.Reversed = True

# Sketch on XZ plane
sketch20 = body.newObject("Sketcher::SketchObject", "Sketch019")
sketch20.AttachmentSupport = (doc.getObject("XZ_Plane"), [""])
sketch20.MapMode = "FlatFace"
sketch20.AttachmentOffset = App.Placement(Vector(0, 0, 10), App.Rotation())
sketch20.addGeometry([
    Part.LineSegment(Vector(5, -13.8, 0), Vector(5, -7.5, 0)),  # 0
    Part.LineSegment(Vector(5, -7.5, 0), Vector(-5, -7.5, 0)),  # 1
    Part.LineSegment(Vector(-5, -7.5, 0), Vector(-5, -15.8, 0)),  # 2
    Part.LineSegment(Vector(-5, -15.8, 0), Vector(-4, -15.8, 0)),  # 3
    Part.LineSegment(Vector(-4, -15.8, 0), Vector(-4, -14.8, 0)),  # 4
    Part.LineSegment(Vector(-4, -14.8, 0), Vector(-3, -14.8, 0)),  # 5
    Part.LineSegment(Vector(-3, -14.8, 0), Vector(-3, -13.8, 0)),  # 6
    Part.LineSegment(Vector(-3, -13.8, 0), Vector(5, -13.8, 0)),  # 7
], False)
sketch20.addConstraint([
    Sketcher.Constraint("Coincident", 0, 2, 1, 1),
    Sketcher.Constraint("Coincident", 1, 2, 2, 1),
    Sketcher.Constraint("Coincident", 2, 2, 3, 1),
    Sketcher.Constraint("Coincident", 3, 2, 4, 1),
    Sketcher.Constraint("Coincident", 4, 2, 5, 1),
    Sketcher.Constraint("Coincident", 5, 2, 6, 1),
    Sketcher.Constraint("Coincident", 6, 2, 7, 1),
    Sketcher.Constraint("Coincident", 7, 2, 0, 1),
    Sketcher.Constraint("Vertical", 0),
    Sketcher.Constraint("Horizontal", 1),
    Sketcher.Constraint("Vertical", 2),
    Sketcher.Constraint("Horizontal", 3),
    Sketcher.Constraint("Vertical", 4),
    Sketcher.Constraint("Horizontal", 5),
    Sketcher.Constraint("Vertical", 6),
    Sketcher.Constraint("Horizontal", 7),
    Sketcher.Constraint("Equal", 3, 5),
    Sketcher.Constraint("Equal", 5, 4),
    Sketcher.Constraint("Equal", 4, 6),
    Sketcher.Constraint("DistanceX", 3, 1, 3, 2, Q("1 mm")),
    Sketcher.Constraint("DistanceX", -1, 1, 0, 2, Q("5 mm")),
    Sketcher.Constraint("DistanceX", 1, 2, 1, 1, Q("10.05 mm")),
    Sketcher.Constraint("DistanceY", 0, 1, 0, 2, Q("6.25 mm")),
    Sketcher.Constraint("DistanceY", 0, 2, -1, 1, Q("7.5 mm")),
])
pad15 = body.newObject("PartDesign::Pad", "Pad014")
pad15.Profile = sketch20
pad15.Length = 0.05

# Sketch on YZ plane
sketch21 = body.newObject("Sketcher::SketchObject", "Sketch020")
sketch21.AttachmentSupport = (doc.getObject("YZ_Plane"), [""])
sketch21.MapMode = "FlatFace"
sketch21.AttachmentOffset = App.Placement(Vector(0, 0, 5), App.Rotation())
sketch21.addGeometry([
    Part.LineSegment(Vector(-10, -8, 0), Vector(-10, -14, 0)),
    Part.LineSegment(Vector(-10, -14, 0), Vector(-3, -14, 0)),
    Part.LineSegment(Vector(-3, -14, 0), Vector(-3, -8, 0)),
    Part.LineSegment(Vector(-3, -8, 0), Vector(-10, -8, 0)),
], False)
sketch21.addConstraint([
    Sketcher.Constraint("Coincident", 0, 2, 1, 1),
    Sketcher.Constraint("Coincident", 1, 2, 2, 1),
    Sketcher.Constraint("Coincident", 2, 2, 3, 1),
    Sketcher.Constraint("Coincident", 3, 2, 0, 1),
    Sketcher.Constraint("Vertical", 0),
    Sketcher.Constraint("Horizontal", 1),
    Sketcher.Constraint("Vertical", 2),
    Sketcher.Constraint("Horizontal", 3),
    Sketcher.Constraint("DistanceX", 1, 1, 1, 2, Q("7.1 mm")),
    Sketcher.Constraint("DistanceY", 0, 2, 0, 1, Q("6.25 mm")),
    Sketcher.Constraint("DistanceY", 2, 2, -1, 1, Q("7.5 mm")),
    Sketcher.Constraint("DistanceX", 0, 2, -1, 1, Q("10.05 mm")),
])
pad16 = body.newObject("PartDesign::Pad", "Pad015")
pad16.Profile = sketch21
pad16.Length = 0.05

doc.recompute()
